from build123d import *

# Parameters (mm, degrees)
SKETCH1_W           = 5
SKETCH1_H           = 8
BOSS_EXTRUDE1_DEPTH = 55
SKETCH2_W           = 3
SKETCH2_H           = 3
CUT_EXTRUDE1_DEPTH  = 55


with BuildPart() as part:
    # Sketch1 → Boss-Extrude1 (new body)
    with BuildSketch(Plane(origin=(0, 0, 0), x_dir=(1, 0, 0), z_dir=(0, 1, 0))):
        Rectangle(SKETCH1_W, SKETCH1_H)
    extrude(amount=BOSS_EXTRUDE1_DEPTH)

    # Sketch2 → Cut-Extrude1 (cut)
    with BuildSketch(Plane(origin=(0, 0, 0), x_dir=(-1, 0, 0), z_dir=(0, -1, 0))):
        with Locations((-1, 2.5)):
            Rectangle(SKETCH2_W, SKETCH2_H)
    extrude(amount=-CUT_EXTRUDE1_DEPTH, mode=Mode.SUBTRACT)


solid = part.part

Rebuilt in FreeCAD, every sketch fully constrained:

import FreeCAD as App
import Part
import Sketcher

V = App.Vector

doc = App.newDocument("Part")
body = doc.addObject("PartDesign::Body", "Body")

# Sketch on XZ plane
sketch1 = body.newObject("Sketcher::SketchObject", "Sketch")
sketch1.AttachmentSupport = (doc.getObject("XZ_Plane"), [""])
sketch1.MapMode = "FlatFace"
sketch1.addGeometry([
    Part.LineSegment(V(-2, -4, 0), V(-2, 4, 0)),
    Part.LineSegment(V(-2, 4, 0), V(2, 4, 0)),
    Part.LineSegment(V(2, 4, 0), V(2, -4, 0)),
    Part.LineSegment(V(2, -4, 0), V(-2, -4, 0)),
], False)
sketch1.addConstraint([
    Sketcher.Constraint("Coincident", 0, 2, 1, 1),
    Sketcher.Constraint("Coincident", 1, 2, 2, 1),
    Sketcher.Constraint("Coincident", 2, 2, 3, 1),
    Sketcher.Constraint("Coincident", 3, 2, 0, 1),
    Sketcher.Constraint("Vertical", 0),
    Sketcher.Constraint("Horizontal", 1),
    Sketcher.Constraint("Vertical", 2),
    Sketcher.Constraint("Horizontal", 3),
    Sketcher.Constraint("Symmetric", 0, 2, 2, 2, -1, 1),
    Sketcher.Constraint("DistanceX", 1, 1, 1, 2, 5.0),
    Sketcher.Constraint("DistanceY", 0, 1, 0, 2, 8.0),
])
pad1 = body.newObject("PartDesign::Pad", "Pad")
pad1.Profile = sketch1
pad1.Length = 55
pad1.Reversed = True

# Sketch on XZ plane
sketch2 = body.newObject("Sketcher::SketchObject", "Sketch001")
sketch2.AttachmentSupport = (doc.getObject("XZ_Plane"), [""])
sketch2.MapMode = "FlatFace"
sketch2.addGeometry([
    Part.LineSegment(V(2.5, -4, 0), V(2.5, -1, 0)),
    Part.LineSegment(V(2.5, -1, 0), V(-0.5, -1, 0)),
    Part.LineSegment(V(-0.5, -1, 0), V(-0.5, -4, 0)),
    Part.LineSegment(V(-0.5, -4, 0), V(2.5, -4, 0)),
], False)
sketch2.addConstraint([
    Sketcher.Constraint("Coincident", 0, 2, 1, 1),
    Sketcher.Constraint("Coincident", 1, 2, 2, 1),
    Sketcher.Constraint("Coincident", 2, 2, 3, 1),
    Sketcher.Constraint("Coincident", 3, 2, 0, 1),
    Sketcher.Constraint("Vertical", 0),
    Sketcher.Constraint("Horizontal", 1),
    Sketcher.Constraint("Vertical", 2),
    Sketcher.Constraint("Horizontal", 3),
    Sketcher.Constraint("Equal", 3, 0),
    Sketcher.Constraint("DistanceX", 1, 2, 1, 1, 3.0),
    Sketcher.Constraint("DistanceY", 0, 2, -1, 1, 1.0),
    Sketcher.Constraint("DistanceX", -1, 1, 0, 2, 2.5),
])
pocket1 = body.newObject("PartDesign::Pocket", "Pocket")
pocket1.Profile = sketch2
pocket1.Length = 55

doc.recompute()
